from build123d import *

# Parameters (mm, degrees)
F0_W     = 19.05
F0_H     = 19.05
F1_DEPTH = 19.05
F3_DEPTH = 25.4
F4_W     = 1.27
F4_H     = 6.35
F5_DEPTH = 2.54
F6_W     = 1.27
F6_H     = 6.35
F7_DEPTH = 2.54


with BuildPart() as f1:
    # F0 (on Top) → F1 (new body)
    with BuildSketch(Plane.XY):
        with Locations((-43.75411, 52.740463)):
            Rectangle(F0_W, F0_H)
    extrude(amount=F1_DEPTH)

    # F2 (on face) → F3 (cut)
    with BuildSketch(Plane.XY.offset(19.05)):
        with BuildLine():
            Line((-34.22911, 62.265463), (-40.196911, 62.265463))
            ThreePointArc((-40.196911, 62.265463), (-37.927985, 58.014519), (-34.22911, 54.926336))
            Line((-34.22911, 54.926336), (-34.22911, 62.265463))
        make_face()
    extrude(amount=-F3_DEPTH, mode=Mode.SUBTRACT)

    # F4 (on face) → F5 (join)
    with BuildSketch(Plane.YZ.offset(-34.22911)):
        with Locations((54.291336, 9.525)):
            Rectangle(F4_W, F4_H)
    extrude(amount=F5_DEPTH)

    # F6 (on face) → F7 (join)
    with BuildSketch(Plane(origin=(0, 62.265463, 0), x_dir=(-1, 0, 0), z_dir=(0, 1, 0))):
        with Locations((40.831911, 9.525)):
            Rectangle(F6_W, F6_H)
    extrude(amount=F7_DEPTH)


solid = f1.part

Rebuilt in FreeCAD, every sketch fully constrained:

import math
import FreeCAD as App
import Part
import Sketcher

V = App.Vector
Q = App.Units.Quantity


def add_polygon(sketch, points):
    """Adds a closed chain of lines whose ends are joined by coincident constraints."""
    first, n = sketch.GeometryCount, len(points)
    for a, b in zip(points, points[1:] + points[:1]):
        sketch.addGeometry(Part.LineSegment(App.Vector(*a, 0), App.Vector(*b, 0)), False)
    for i in range(n):
        sketch.addConstraint(Sketcher.Constraint("Coincident", first + i, 2, first + (i + 1) % n, 1))

doc = App.newDocument("Part")
body = doc.addObject("PartDesign::Body", "Body")

# Sketch on XY plane
sketch1 = doc.addObject("Sketcher::SketchObject", "Sketch")
body.addObject(sketch1)
sketch1.AttachmentSupport = (doc.XY_Plane, [""])
sketch1.MapMode = "FlatFace"
add_polygon(sketch1, [(-53, 62), (-53, 43), (-34, 43), (-34, 62)])  # lines 0-3
sketch1.addConstraint([
    Sketcher.Constraint("Vertical", 0),
    Sketcher.Constraint("Horizontal", 1),
    Sketcher.Constraint("Vertical", 2),
    Sketcher.Constraint("Horizontal", 3),
    Sketcher.Constraint("Equal", 3, 0),
    Sketcher.Constraint("DistanceX", 1, 1, 1, 2, Q("0.75 in")),
    Sketcher.Constraint("DistanceX", 0, 2, -1, 1, Q("53.27911 mm")),
    Sketcher.Constraint("DistanceY", -1, 1, 0, 2, Q("43.215463 mm")),
])
pad1 = doc.addObject("PartDesign::Pad", "Pad")
body.addObject(pad1)
pad1.Profile = sketch1
pad1.Length = Q("0.75 in")

# Sketch on XY plane
sketch2 = doc.addObject("Sketcher::SketchObject", "Sketch001")
body.addObject(sketch2)
sketch2.AttachmentSupport = (doc.XY_Plane, [""])
sketch2.MapMode = "FlatFace"
sketch2.AttachmentOffset = App.Placement(V(0, 0, 0.75 * 25.4), App.Rotation())
sketch2.addGeometry([
    Part.LineSegment(V(-34, 62, 0), V(-40, 62, 0)),
    Part.ArcOfCircle(Part.Circle(V(-28, 66, 0), V(0, 0, 1), 13), math.radians(-163), math.radians(-119)),
    Part.LineSegment(V(-34, 55, 0), V(-34, 62, 0)),
], False)
sketch2.addConstraint([
    Sketcher.Constraint("Coincident", 0, 2, 1, 1),
    Sketcher.Constraint("Coincident", 1, 2, 2, 1),
    Sketcher.Constraint("Coincident", 2, 2, 0, 1),
    Sketcher.Constraint("Horizontal", 0),
    Sketcher.Constraint("Vertical", 2),
    Sketcher.Constraint("DistanceX", 0, 2, 0, 1, Q("5.967801 mm")),
    Sketcher.Constraint("Radius", 1, Q("12.598017 mm")),
    Sketcher.Constraint("DistanceY", 2, 1, 2, 2, Q("7.339127 mm")),
    Sketcher.Constraint("DistanceX", 1, 3, -1, 1, Q("28.153591 mm")),
    Sketcher.Constraint("DistanceY", -1, 1, 1, 3, Q("65.962554 mm")),
])
pocket1 = doc.addObject("PartDesign::Pocket", "Pocket")
body.addObject(pocket1)
pocket1.Profile = sketch2
pocket1.Length = Q("1 in")

# Sketch on YZ plane
sketch3 = doc.addObject("Sketcher::SketchObject", "Sketch002")
body.addObject(sketch3)
sketch3.AttachmentSupport = (doc.YZ_Plane, [""])
sketch3.MapMode = "FlatFace"
sketch3.AttachmentOffset = App.Placement(V(0, 0, -34.22911), App.Rotation())
add_polygon(sketch3, [(53.7, 12.7), (53.7, 6.3), (54.9, 6.3), (54.9, 12.7)])  # lines 0-3
sketch3.addConstraint([
    Sketcher.Constraint("Vertical", 0),
    Sketcher.Constraint("Horizontal", 1),
    Sketcher.Constraint("Vertical", 2),
    Sketcher.Constraint("Horizontal", 3),
    Sketcher.Constraint("DistanceX", 1, 1, 1, 2, Q("0.05 in")),
    Sketcher.Constraint("DistanceY", 0, 2, 0, 1, Q("0.25 in")),
    Sketcher.Constraint("DistanceY", -1, 1, 2, 2, Q("0.5 in")),
    Sketcher.Constraint("DistanceX", -1, 1, 0, 2, Q("53.656336 mm")),
])
pad2 = doc.addObject("PartDesign::Pad", "Pad001")
body.addObject(pad2)
pad2.Profile = sketch3
pad2.Length = Q("0.1 in")

# Sketch on XZ plane
sketch4 = doc.addObject("Sketcher::SketchObject", "Sketch003")
body.addObject(sketch4)
sketch4.AttachmentSupport = (doc.XZ_Plane, [""])
sketch4.MapMode = "FlatFace"
sketch4.AttachmentOffset = App.Placement(V(0, 0, -62.265463), App.Rotation())
add_polygon(sketch4, [(-40.2, 12.7), (-40.2, 6.3), (-41.5, 6.3), (-41.5, 12.7)])  # lines 0-3
sketch4.addConstraint([
    Sketcher.Constraint("Vertical", 0),
    Sketcher.Constraint("Horizontal", 1),
    Sketcher.Constraint("Vertical", 2),
    Sketcher.Constraint("Horizontal", 3),
    Sketcher.Constraint("DistanceX", 1, 2, 1, 1, Q("0.05 in")),
    Sketcher.Constraint("DistanceY", 0, 2, 0, 1, Q("0.25 in")),
    Sketcher.Constraint("DistanceY", -1, 1, 2, 2, Q("0.5 in")),
    Sketcher.Constraint("DistanceX", 0, 2, -1, 1, Q("40.196911 mm")),
])
pad3 = doc.addObject("PartDesign::Pad", "Pad002")
body.addObject(pad3)
pad3.Profile = sketch4
pad3.Length = Q("0.1 in")
pad3.Reversed = True

doc.recompute()
